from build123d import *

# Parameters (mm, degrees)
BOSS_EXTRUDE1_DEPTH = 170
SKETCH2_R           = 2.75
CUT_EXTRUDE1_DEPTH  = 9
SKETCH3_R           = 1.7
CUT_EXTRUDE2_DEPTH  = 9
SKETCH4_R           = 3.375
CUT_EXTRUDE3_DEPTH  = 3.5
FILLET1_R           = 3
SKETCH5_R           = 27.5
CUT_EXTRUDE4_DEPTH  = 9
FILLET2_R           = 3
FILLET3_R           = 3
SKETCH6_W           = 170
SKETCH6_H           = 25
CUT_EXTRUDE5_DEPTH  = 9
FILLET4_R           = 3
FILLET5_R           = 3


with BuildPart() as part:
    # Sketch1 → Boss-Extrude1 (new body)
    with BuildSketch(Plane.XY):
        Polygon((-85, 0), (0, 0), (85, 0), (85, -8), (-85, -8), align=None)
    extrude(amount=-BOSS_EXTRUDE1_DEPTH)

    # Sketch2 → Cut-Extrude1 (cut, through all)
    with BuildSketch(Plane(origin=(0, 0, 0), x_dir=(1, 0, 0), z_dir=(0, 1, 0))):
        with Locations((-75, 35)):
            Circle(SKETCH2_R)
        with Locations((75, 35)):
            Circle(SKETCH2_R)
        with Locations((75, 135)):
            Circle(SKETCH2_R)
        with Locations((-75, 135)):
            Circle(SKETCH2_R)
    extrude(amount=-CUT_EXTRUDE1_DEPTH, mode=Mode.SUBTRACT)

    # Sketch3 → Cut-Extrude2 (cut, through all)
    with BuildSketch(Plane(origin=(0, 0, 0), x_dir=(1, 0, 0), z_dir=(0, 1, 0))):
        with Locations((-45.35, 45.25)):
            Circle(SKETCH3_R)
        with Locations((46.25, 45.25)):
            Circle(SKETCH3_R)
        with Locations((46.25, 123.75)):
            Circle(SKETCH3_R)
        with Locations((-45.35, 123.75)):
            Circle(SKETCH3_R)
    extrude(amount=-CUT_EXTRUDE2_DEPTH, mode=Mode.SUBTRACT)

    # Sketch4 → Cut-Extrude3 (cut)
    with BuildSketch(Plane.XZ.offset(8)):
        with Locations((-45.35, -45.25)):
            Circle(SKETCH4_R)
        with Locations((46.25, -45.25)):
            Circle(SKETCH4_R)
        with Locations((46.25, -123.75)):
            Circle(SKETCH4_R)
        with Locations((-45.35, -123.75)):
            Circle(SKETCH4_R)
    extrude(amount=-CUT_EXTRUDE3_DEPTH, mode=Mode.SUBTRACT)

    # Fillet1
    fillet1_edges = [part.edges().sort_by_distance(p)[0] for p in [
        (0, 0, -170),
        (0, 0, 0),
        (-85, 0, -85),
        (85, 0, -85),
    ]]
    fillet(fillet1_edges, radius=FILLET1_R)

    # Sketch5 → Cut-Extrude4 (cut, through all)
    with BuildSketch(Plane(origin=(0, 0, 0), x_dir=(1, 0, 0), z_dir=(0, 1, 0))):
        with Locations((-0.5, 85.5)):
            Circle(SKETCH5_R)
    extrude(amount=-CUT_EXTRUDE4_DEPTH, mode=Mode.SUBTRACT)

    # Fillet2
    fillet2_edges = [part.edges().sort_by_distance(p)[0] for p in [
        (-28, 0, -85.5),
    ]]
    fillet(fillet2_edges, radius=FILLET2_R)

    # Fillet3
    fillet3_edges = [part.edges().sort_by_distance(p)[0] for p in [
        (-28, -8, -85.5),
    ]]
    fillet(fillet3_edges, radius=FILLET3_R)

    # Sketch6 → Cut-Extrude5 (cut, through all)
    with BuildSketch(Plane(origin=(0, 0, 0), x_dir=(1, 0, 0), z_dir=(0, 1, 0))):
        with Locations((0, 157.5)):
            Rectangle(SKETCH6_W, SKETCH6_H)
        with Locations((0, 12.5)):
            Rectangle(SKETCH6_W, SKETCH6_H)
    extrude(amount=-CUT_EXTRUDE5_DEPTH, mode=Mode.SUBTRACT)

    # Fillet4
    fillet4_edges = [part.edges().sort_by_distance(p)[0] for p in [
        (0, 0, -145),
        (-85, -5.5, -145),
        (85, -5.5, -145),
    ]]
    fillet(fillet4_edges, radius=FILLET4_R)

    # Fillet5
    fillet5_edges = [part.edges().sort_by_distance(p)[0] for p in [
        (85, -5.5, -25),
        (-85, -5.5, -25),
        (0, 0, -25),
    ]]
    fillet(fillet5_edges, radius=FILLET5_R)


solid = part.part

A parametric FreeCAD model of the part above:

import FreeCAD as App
import Part
import Sketcher

V = App.Vector


def edges_at(feature, points):
    """Names of the edges that pass closest to the given points."""
    edges = feature.Shape.Edges
    near = lambda p: min(range(len(edges)), key=lambda i: edges[i].distToShape(Part.Vertex(*p))[0])
    return sorted({f"Edge{near(p) + 1}" for p in points})

doc = App.newDocument("Part")
body = doc.addObject("PartDesign::Body", "Body")

# Sketch on XY plane
sketch1 = doc.addObject("Sketcher::SketchObject", "Sketch")
body.addObject(sketch1)
sketch1.AttachmentSupport = (doc.XY_Plane, [""])
sketch1.MapMode = "FlatFace"
sketch1.addGeometry([
    Part.LineSegment(V(85, 0, 0), V(-85, 0, 0)),
    Part.LineSegment(V(-85, 0, 0), V(-85, -8, 0)),
    Part.LineSegment(V(-85, -8, 0), V(85, -8, 0)),
    Part.LineSegment(V(85, -8, 0), V(85, 0, 0)),
], False)
sketch1.addConstraint([
    Sketcher.Constraint("Coincident", 0, 2, 1, 1),
    Sketcher.Constraint("Coincident", 1, 2, 2, 1),
    Sketcher.Constraint("Coincident", 2, 2, 3, 1),
    Sketcher.Constraint("Coincident", 3, 2, 0, 1),
    Sketcher.Constraint("Horizontal", 0),
    Sketcher.Constraint("Vertical", 1),
    Sketcher.Constraint("Horizontal", 2),
    Sketcher.Constraint("Vertical", 3),
    Sketcher.Constraint("Symmetric", 0, 2, 3, 2, -1, 1),
    Sketcher.Constraint("DistanceX", 0, 2, 0, 1, 170.0),
    Sketcher.Constraint("DistanceY", 1, 2, 1, 1, 8.0),
])
pad1 = doc.addObject("PartDesign::Pad", "Pad")
body.addObject(pad1)
pad1.Profile = sketch1
pad1.Length = 170
pad1.Reversed = True

# Sketch on XZ plane
sketch2 = doc.addObject("Sketcher::SketchObject", "Sketch001")
body.addObject(sketch2)
sketch2.AttachmentSupport = (doc.XZ_Plane, [""])
sketch2.MapMode = "FlatFace"
sketch2.addGeometry([
    Part.Circle(V(-75, -35, 0), V(0, 0, 1), 2.75),
    Part.Circle(V(75, -35, 0), V(0, 0, 1), 2.75),
    Part.Circle(V(75, -135, 0), V(0, 0, 1), 2.75),
    Part.Circle(V(-75, -135, 0), V(0, 0, 1), 2.75),
], False)
sketch2.addConstraint([
    Sketcher.Constraint("Equal", 0, 1),
    Sketcher.Constraint("Equal", 1, 2),
    Sketcher.Constraint("Equal", 2, 3),
    Sketcher.Constraint("Symmetric", 0, 3, 1, 3, -2),
    Sketcher.Constraint("Symmetric", 2, 3, 3, 3, -2),
    Sketcher.Constraint("Vertical", 1, 3, 2, 3),
    Sketcher.Constraint("Diameter", 0, 5.5),
    Sketcher.Constraint("DistanceX", 0, 3, -1, 1, 75.0),
    Sketcher.Constraint("DistanceY", 0, 3, -1, 1, 35.0),
    Sketcher.Constraint("DistanceY", 2, 3, -1, 1, 135.0),
])
pocket1 = doc.addObject("PartDesign::Pocket", "Pocket")
body.addObject(pocket1)
pocket1.Profile = sketch2
pocket1.Type = "ThroughAll"
pocket1.Reversed = True

# Sketch on XZ plane
sketch3 = doc.addObject("Sketcher::SketchObject", "Sketch002")
body.addObject(sketch3)
sketch3.AttachmentSupport = (doc.XZ_Plane, [""])
sketch3.MapMode = "FlatFace"
sketch3.addGeometry([
    Part.Circle(V(-45.35, -45.25, 0), V(0, 0, 1), 1.7),
    Part.Circle(V(46.25, -45.25, 0), V(0, 0, 1), 1.7),
    Part.Circle(V(46.25, -123.75, 0), V(0, 0, 1), 1.7),
    Part.Circle(V(-45.35, -123.75, 0), V(0, 0, 1), 1.7),
], False)
sketch3.addConstraint([
    Sketcher.Constraint("Equal", 0, 1),
    Sketcher.Constraint("Equal", 1, 2),
    Sketcher.Constraint("Equal", 2, 3),
    Sketcher.Constraint("Horizontal", 0, 3, 1, 3),
    Sketcher.Constraint("Horizontal", 2, 3, 3, 3),
    Sketcher.Constraint("Vertical", 1, 3, 2, 3),
    Sketcher.Constraint("Vertical", 0, 3, 3, 3),
    Sketcher.Constraint("Diameter", 0, 3.4),
    Sketcher.Constraint("DistanceX", 0, 3, 1, 3, 91.6),
    Sketcher.Constraint("DistanceY", 2, 3, 1, 3, 78.5),
    Sketcher.Constraint("DistanceX", 0, 3, -1, 1, 45.35),
    Sketcher.Constraint("DistanceY", 0, 3, -1, 1, 45.25),
])
pocket2 = doc.addObject("PartDesign::Pocket", "Pocket001")
body.addObject(pocket2)
pocket2.Profile = sketch3
pocket2.Type = "ThroughAll"
pocket2.Reversed = True

# Sketch on XZ plane
sketch4 = doc.addObject("Sketcher::SketchObject", "Sketch003")
body.addObject(sketch4)
sketch4.AttachmentSupport = (doc.XZ_Plane, [""])
sketch4.MapMode = "FlatFace"
sketch4.AttachmentOffset = App.Placement(V(0, 0, 8), App.Rotation())
sketch4.addGeometry([
    Part.Circle(V(-45.35, -45.25, 0), V(0, 0, 1), 3.375),
    Part.Circle(V(46.25, -45.25, 0), V(0, 0, 1), 3.375),
    Part.Circle(V(46.25, -123.75, 0), V(0, 0, 1), 3.375),
    Part.Circle(V(-45.35, -123.75, 0), V(0, 0, 1), 3.375),
], False)
sketch4.addConstraint([
    Sketcher.Constraint("Equal", 0, 1),
    Sketcher.Constraint("Equal", 1, 2),
    Sketcher.Constraint("Equal", 2, 3),
    Sketcher.Constraint("Horizontal", 0, 3, 1, 3),
    Sketcher.Constraint("Horizontal", 2, 3, 3, 3),
    Sketcher.Constraint("Vertical", 1, 3, 2, 3),
    Sketcher.Constraint("Vertical", 0, 3, 3, 3),
    Sketcher.Constraint("Diameter", 0, 6.75),
    Sketcher.Constraint("DistanceX", 0, 3, 1, 3, 91.6),
    Sketcher.Constraint("DistanceY", 2, 3, 1, 3, 78.5),
    Sketcher.Constraint("DistanceX", 0, 3, -1, 1, 45.35),
    Sketcher.Constraint("DistanceY", 0, 3, -1, 1, 45.25),
])
pocket3 = doc.addObject("PartDesign::Pocket", "Pocket002")
body.addObject(pocket3)
pocket3.Profile = sketch4
pocket3.Length = 3.5
doc.recompute()

fillet = doc.addObject("PartDesign::Fillet", "Fillet")
body.addObject(fillet)
fillet.Base = (pocket3, edges_at(pocket3, [
    (0, 0, -170),
    (0, 0, 0),
    (-85, 0, -85),
    (85, 0, -85),
]))
fillet.Radius = 3

# Sketch on XZ plane
sketch5 = doc.addObject("Sketcher::SketchObject", "Sketch004")
body.addObject(sketch5)
sketch5.AttachmentSupport = (doc.XZ_Plane, [""])
sketch5.MapMode = "FlatFace"
sketch5.addGeometry(Part.Circle(V(-0.5, -85.5, 0), V(0, 0, 1), 27.5), False)
sketch5.addConstraint([
    Sketcher.Constraint("Diameter", 0, 55.0),
    Sketcher.Constraint("DistanceX", 0, 3, -1, 1, 0.5),
    Sketcher.Constraint("DistanceY", 0, 3, -1, 1, 85.5),
])
pocket4 = doc.addObject("PartDesign::Pocket", "Pocket003")
body.addObject(pocket4)
pocket4.Profile = sketch5
pocket4.Type = "ThroughAll"
pocket4.Reversed = True
doc.recompute()

fillet2 = doc.addObject("PartDesign::Fillet", "Fillet001")
body.addObject(fillet2)
fillet2.Base = (pocket4, edges_at(pocket4, [(-28, 0, -85.5)]))
fillet2.Radius = 3
doc.recompute()

fillet3 = doc.addObject("PartDesign::Fillet", "Fillet002")
body.addObject(fillet3)
fillet3.Base = (fillet2, edges_at(fillet2, [(-28, -8, -85.5)]))
fillet3.Radius = 3

# Sketch on XZ plane
sketch6 = doc.addObject("Sketcher::SketchObject", "Sketch005")
body.addObject(sketch6)
sketch6.AttachmentSupport = (doc.XZ_Plane, [""])
sketch6.MapMode = "FlatFace"
sketch6.addGeometry([
    Part.LineSegment(V(-85, -170, 0), V(-85, -145, 0)),  # 0
    Part.LineSegment(V(-85, -145, 0), V(85, -145, 0)),  # 1
    Part.LineSegment(V(85, -145, 0), V(85, -170, 0)),  # 2
    Part.LineSegment(V(85, -170, 0), V(-85, -170, 0)),  # 3
    Part.LineSegment(V(-85, -25, 0), V(-85, 0, 0)),  # 4
    Part.LineSegment(V(-85, 0, 0), V(85, 0, 0)),  # 5
    Part.LineSegment(V(85, 0, 0), V(85, -25, 0)),  # 6
    Part.LineSegment(V(85, -25, 0), V(-85, -25, 0)),  # 7
], False)
sketch6.addConstraint([
    Sketcher.Constraint("Coincident", 0, 2, 1, 1),
    Sketcher.Constraint("Coincident", 1, 2, 2, 1),
    Sketcher.Constraint("Coincident", 2, 2, 3, 1),
    Sketcher.Constraint("Coincident", 3, 2, 0, 1),
    Sketcher.Constraint("Coincident", 4, 2, 5, 1),
    Sketcher.Constraint("Coincident", 5, 2, 6, 1),
    Sketcher.Constraint("Coincident", 6, 2, 7, 1),
    Sketcher.Constraint("Coincident", 7, 2, 4, 1),
    Sketcher.Constraint("Vertical", 0),
    Sketcher.Constraint("Horizontal", 1),
    Sketcher.Constraint("Vertical", 2),
    Sketcher.Constraint("Horizontal", 3),
    Sketcher.Constraint("Vertical", 4),
    Sketcher.Constraint("Horizontal", 5),
    Sketcher.Constraint("Vertical", 6),
    Sketcher.Constraint("Horizontal", 7),
    Sketcher.Constraint("Symmetric", 4, 2, 5, 2, -1, 1),
    Sketcher.Constraint("Vertical", 3, 2, 4, 2),
    Sketcher.Constraint("Vertical", 2, 2, 5, 2),
    Sketcher.Constraint("Equal", 2, 4),
    Sketcher.Constraint("DistanceX", 1, 1, 1, 2, 170.0),
    Sketcher.Constraint("DistanceY", 0, 1, 0, 2, 25.0),
    Sketcher.Constraint("DistanceY", 0, 2, -1, 1, 145.0),
])
pocket5 = doc.addObject("PartDesign::Pocket", "Pocket004")
body.addObject(pocket5)
pocket5.Profile = sketch6
pocket5.Type = "ThroughAll"
pocket5.Reversed = True
doc.recompute()

fillet4 = doc.addObject("PartDesign::Fillet", "Fillet003")
body.addObject(fillet4)
fillet4.Base = (pocket5, edges_at(pocket5, [(0, 0, -145), (-85, -5.5, -145), (85, -5.5, -145)]))
fillet4.Radius = 3
doc.recompute()

fillet5 = doc.addObject("PartDesign::Fillet", "Fillet004")
body.addObject(fillet5)
fillet5.Base = (fillet4, edges_at(fillet4, [(85, -5.5, -25), (-85, -5.5, -25), (0, 0, -25)]))
fillet5.Radius = 3

doc.recompute()
